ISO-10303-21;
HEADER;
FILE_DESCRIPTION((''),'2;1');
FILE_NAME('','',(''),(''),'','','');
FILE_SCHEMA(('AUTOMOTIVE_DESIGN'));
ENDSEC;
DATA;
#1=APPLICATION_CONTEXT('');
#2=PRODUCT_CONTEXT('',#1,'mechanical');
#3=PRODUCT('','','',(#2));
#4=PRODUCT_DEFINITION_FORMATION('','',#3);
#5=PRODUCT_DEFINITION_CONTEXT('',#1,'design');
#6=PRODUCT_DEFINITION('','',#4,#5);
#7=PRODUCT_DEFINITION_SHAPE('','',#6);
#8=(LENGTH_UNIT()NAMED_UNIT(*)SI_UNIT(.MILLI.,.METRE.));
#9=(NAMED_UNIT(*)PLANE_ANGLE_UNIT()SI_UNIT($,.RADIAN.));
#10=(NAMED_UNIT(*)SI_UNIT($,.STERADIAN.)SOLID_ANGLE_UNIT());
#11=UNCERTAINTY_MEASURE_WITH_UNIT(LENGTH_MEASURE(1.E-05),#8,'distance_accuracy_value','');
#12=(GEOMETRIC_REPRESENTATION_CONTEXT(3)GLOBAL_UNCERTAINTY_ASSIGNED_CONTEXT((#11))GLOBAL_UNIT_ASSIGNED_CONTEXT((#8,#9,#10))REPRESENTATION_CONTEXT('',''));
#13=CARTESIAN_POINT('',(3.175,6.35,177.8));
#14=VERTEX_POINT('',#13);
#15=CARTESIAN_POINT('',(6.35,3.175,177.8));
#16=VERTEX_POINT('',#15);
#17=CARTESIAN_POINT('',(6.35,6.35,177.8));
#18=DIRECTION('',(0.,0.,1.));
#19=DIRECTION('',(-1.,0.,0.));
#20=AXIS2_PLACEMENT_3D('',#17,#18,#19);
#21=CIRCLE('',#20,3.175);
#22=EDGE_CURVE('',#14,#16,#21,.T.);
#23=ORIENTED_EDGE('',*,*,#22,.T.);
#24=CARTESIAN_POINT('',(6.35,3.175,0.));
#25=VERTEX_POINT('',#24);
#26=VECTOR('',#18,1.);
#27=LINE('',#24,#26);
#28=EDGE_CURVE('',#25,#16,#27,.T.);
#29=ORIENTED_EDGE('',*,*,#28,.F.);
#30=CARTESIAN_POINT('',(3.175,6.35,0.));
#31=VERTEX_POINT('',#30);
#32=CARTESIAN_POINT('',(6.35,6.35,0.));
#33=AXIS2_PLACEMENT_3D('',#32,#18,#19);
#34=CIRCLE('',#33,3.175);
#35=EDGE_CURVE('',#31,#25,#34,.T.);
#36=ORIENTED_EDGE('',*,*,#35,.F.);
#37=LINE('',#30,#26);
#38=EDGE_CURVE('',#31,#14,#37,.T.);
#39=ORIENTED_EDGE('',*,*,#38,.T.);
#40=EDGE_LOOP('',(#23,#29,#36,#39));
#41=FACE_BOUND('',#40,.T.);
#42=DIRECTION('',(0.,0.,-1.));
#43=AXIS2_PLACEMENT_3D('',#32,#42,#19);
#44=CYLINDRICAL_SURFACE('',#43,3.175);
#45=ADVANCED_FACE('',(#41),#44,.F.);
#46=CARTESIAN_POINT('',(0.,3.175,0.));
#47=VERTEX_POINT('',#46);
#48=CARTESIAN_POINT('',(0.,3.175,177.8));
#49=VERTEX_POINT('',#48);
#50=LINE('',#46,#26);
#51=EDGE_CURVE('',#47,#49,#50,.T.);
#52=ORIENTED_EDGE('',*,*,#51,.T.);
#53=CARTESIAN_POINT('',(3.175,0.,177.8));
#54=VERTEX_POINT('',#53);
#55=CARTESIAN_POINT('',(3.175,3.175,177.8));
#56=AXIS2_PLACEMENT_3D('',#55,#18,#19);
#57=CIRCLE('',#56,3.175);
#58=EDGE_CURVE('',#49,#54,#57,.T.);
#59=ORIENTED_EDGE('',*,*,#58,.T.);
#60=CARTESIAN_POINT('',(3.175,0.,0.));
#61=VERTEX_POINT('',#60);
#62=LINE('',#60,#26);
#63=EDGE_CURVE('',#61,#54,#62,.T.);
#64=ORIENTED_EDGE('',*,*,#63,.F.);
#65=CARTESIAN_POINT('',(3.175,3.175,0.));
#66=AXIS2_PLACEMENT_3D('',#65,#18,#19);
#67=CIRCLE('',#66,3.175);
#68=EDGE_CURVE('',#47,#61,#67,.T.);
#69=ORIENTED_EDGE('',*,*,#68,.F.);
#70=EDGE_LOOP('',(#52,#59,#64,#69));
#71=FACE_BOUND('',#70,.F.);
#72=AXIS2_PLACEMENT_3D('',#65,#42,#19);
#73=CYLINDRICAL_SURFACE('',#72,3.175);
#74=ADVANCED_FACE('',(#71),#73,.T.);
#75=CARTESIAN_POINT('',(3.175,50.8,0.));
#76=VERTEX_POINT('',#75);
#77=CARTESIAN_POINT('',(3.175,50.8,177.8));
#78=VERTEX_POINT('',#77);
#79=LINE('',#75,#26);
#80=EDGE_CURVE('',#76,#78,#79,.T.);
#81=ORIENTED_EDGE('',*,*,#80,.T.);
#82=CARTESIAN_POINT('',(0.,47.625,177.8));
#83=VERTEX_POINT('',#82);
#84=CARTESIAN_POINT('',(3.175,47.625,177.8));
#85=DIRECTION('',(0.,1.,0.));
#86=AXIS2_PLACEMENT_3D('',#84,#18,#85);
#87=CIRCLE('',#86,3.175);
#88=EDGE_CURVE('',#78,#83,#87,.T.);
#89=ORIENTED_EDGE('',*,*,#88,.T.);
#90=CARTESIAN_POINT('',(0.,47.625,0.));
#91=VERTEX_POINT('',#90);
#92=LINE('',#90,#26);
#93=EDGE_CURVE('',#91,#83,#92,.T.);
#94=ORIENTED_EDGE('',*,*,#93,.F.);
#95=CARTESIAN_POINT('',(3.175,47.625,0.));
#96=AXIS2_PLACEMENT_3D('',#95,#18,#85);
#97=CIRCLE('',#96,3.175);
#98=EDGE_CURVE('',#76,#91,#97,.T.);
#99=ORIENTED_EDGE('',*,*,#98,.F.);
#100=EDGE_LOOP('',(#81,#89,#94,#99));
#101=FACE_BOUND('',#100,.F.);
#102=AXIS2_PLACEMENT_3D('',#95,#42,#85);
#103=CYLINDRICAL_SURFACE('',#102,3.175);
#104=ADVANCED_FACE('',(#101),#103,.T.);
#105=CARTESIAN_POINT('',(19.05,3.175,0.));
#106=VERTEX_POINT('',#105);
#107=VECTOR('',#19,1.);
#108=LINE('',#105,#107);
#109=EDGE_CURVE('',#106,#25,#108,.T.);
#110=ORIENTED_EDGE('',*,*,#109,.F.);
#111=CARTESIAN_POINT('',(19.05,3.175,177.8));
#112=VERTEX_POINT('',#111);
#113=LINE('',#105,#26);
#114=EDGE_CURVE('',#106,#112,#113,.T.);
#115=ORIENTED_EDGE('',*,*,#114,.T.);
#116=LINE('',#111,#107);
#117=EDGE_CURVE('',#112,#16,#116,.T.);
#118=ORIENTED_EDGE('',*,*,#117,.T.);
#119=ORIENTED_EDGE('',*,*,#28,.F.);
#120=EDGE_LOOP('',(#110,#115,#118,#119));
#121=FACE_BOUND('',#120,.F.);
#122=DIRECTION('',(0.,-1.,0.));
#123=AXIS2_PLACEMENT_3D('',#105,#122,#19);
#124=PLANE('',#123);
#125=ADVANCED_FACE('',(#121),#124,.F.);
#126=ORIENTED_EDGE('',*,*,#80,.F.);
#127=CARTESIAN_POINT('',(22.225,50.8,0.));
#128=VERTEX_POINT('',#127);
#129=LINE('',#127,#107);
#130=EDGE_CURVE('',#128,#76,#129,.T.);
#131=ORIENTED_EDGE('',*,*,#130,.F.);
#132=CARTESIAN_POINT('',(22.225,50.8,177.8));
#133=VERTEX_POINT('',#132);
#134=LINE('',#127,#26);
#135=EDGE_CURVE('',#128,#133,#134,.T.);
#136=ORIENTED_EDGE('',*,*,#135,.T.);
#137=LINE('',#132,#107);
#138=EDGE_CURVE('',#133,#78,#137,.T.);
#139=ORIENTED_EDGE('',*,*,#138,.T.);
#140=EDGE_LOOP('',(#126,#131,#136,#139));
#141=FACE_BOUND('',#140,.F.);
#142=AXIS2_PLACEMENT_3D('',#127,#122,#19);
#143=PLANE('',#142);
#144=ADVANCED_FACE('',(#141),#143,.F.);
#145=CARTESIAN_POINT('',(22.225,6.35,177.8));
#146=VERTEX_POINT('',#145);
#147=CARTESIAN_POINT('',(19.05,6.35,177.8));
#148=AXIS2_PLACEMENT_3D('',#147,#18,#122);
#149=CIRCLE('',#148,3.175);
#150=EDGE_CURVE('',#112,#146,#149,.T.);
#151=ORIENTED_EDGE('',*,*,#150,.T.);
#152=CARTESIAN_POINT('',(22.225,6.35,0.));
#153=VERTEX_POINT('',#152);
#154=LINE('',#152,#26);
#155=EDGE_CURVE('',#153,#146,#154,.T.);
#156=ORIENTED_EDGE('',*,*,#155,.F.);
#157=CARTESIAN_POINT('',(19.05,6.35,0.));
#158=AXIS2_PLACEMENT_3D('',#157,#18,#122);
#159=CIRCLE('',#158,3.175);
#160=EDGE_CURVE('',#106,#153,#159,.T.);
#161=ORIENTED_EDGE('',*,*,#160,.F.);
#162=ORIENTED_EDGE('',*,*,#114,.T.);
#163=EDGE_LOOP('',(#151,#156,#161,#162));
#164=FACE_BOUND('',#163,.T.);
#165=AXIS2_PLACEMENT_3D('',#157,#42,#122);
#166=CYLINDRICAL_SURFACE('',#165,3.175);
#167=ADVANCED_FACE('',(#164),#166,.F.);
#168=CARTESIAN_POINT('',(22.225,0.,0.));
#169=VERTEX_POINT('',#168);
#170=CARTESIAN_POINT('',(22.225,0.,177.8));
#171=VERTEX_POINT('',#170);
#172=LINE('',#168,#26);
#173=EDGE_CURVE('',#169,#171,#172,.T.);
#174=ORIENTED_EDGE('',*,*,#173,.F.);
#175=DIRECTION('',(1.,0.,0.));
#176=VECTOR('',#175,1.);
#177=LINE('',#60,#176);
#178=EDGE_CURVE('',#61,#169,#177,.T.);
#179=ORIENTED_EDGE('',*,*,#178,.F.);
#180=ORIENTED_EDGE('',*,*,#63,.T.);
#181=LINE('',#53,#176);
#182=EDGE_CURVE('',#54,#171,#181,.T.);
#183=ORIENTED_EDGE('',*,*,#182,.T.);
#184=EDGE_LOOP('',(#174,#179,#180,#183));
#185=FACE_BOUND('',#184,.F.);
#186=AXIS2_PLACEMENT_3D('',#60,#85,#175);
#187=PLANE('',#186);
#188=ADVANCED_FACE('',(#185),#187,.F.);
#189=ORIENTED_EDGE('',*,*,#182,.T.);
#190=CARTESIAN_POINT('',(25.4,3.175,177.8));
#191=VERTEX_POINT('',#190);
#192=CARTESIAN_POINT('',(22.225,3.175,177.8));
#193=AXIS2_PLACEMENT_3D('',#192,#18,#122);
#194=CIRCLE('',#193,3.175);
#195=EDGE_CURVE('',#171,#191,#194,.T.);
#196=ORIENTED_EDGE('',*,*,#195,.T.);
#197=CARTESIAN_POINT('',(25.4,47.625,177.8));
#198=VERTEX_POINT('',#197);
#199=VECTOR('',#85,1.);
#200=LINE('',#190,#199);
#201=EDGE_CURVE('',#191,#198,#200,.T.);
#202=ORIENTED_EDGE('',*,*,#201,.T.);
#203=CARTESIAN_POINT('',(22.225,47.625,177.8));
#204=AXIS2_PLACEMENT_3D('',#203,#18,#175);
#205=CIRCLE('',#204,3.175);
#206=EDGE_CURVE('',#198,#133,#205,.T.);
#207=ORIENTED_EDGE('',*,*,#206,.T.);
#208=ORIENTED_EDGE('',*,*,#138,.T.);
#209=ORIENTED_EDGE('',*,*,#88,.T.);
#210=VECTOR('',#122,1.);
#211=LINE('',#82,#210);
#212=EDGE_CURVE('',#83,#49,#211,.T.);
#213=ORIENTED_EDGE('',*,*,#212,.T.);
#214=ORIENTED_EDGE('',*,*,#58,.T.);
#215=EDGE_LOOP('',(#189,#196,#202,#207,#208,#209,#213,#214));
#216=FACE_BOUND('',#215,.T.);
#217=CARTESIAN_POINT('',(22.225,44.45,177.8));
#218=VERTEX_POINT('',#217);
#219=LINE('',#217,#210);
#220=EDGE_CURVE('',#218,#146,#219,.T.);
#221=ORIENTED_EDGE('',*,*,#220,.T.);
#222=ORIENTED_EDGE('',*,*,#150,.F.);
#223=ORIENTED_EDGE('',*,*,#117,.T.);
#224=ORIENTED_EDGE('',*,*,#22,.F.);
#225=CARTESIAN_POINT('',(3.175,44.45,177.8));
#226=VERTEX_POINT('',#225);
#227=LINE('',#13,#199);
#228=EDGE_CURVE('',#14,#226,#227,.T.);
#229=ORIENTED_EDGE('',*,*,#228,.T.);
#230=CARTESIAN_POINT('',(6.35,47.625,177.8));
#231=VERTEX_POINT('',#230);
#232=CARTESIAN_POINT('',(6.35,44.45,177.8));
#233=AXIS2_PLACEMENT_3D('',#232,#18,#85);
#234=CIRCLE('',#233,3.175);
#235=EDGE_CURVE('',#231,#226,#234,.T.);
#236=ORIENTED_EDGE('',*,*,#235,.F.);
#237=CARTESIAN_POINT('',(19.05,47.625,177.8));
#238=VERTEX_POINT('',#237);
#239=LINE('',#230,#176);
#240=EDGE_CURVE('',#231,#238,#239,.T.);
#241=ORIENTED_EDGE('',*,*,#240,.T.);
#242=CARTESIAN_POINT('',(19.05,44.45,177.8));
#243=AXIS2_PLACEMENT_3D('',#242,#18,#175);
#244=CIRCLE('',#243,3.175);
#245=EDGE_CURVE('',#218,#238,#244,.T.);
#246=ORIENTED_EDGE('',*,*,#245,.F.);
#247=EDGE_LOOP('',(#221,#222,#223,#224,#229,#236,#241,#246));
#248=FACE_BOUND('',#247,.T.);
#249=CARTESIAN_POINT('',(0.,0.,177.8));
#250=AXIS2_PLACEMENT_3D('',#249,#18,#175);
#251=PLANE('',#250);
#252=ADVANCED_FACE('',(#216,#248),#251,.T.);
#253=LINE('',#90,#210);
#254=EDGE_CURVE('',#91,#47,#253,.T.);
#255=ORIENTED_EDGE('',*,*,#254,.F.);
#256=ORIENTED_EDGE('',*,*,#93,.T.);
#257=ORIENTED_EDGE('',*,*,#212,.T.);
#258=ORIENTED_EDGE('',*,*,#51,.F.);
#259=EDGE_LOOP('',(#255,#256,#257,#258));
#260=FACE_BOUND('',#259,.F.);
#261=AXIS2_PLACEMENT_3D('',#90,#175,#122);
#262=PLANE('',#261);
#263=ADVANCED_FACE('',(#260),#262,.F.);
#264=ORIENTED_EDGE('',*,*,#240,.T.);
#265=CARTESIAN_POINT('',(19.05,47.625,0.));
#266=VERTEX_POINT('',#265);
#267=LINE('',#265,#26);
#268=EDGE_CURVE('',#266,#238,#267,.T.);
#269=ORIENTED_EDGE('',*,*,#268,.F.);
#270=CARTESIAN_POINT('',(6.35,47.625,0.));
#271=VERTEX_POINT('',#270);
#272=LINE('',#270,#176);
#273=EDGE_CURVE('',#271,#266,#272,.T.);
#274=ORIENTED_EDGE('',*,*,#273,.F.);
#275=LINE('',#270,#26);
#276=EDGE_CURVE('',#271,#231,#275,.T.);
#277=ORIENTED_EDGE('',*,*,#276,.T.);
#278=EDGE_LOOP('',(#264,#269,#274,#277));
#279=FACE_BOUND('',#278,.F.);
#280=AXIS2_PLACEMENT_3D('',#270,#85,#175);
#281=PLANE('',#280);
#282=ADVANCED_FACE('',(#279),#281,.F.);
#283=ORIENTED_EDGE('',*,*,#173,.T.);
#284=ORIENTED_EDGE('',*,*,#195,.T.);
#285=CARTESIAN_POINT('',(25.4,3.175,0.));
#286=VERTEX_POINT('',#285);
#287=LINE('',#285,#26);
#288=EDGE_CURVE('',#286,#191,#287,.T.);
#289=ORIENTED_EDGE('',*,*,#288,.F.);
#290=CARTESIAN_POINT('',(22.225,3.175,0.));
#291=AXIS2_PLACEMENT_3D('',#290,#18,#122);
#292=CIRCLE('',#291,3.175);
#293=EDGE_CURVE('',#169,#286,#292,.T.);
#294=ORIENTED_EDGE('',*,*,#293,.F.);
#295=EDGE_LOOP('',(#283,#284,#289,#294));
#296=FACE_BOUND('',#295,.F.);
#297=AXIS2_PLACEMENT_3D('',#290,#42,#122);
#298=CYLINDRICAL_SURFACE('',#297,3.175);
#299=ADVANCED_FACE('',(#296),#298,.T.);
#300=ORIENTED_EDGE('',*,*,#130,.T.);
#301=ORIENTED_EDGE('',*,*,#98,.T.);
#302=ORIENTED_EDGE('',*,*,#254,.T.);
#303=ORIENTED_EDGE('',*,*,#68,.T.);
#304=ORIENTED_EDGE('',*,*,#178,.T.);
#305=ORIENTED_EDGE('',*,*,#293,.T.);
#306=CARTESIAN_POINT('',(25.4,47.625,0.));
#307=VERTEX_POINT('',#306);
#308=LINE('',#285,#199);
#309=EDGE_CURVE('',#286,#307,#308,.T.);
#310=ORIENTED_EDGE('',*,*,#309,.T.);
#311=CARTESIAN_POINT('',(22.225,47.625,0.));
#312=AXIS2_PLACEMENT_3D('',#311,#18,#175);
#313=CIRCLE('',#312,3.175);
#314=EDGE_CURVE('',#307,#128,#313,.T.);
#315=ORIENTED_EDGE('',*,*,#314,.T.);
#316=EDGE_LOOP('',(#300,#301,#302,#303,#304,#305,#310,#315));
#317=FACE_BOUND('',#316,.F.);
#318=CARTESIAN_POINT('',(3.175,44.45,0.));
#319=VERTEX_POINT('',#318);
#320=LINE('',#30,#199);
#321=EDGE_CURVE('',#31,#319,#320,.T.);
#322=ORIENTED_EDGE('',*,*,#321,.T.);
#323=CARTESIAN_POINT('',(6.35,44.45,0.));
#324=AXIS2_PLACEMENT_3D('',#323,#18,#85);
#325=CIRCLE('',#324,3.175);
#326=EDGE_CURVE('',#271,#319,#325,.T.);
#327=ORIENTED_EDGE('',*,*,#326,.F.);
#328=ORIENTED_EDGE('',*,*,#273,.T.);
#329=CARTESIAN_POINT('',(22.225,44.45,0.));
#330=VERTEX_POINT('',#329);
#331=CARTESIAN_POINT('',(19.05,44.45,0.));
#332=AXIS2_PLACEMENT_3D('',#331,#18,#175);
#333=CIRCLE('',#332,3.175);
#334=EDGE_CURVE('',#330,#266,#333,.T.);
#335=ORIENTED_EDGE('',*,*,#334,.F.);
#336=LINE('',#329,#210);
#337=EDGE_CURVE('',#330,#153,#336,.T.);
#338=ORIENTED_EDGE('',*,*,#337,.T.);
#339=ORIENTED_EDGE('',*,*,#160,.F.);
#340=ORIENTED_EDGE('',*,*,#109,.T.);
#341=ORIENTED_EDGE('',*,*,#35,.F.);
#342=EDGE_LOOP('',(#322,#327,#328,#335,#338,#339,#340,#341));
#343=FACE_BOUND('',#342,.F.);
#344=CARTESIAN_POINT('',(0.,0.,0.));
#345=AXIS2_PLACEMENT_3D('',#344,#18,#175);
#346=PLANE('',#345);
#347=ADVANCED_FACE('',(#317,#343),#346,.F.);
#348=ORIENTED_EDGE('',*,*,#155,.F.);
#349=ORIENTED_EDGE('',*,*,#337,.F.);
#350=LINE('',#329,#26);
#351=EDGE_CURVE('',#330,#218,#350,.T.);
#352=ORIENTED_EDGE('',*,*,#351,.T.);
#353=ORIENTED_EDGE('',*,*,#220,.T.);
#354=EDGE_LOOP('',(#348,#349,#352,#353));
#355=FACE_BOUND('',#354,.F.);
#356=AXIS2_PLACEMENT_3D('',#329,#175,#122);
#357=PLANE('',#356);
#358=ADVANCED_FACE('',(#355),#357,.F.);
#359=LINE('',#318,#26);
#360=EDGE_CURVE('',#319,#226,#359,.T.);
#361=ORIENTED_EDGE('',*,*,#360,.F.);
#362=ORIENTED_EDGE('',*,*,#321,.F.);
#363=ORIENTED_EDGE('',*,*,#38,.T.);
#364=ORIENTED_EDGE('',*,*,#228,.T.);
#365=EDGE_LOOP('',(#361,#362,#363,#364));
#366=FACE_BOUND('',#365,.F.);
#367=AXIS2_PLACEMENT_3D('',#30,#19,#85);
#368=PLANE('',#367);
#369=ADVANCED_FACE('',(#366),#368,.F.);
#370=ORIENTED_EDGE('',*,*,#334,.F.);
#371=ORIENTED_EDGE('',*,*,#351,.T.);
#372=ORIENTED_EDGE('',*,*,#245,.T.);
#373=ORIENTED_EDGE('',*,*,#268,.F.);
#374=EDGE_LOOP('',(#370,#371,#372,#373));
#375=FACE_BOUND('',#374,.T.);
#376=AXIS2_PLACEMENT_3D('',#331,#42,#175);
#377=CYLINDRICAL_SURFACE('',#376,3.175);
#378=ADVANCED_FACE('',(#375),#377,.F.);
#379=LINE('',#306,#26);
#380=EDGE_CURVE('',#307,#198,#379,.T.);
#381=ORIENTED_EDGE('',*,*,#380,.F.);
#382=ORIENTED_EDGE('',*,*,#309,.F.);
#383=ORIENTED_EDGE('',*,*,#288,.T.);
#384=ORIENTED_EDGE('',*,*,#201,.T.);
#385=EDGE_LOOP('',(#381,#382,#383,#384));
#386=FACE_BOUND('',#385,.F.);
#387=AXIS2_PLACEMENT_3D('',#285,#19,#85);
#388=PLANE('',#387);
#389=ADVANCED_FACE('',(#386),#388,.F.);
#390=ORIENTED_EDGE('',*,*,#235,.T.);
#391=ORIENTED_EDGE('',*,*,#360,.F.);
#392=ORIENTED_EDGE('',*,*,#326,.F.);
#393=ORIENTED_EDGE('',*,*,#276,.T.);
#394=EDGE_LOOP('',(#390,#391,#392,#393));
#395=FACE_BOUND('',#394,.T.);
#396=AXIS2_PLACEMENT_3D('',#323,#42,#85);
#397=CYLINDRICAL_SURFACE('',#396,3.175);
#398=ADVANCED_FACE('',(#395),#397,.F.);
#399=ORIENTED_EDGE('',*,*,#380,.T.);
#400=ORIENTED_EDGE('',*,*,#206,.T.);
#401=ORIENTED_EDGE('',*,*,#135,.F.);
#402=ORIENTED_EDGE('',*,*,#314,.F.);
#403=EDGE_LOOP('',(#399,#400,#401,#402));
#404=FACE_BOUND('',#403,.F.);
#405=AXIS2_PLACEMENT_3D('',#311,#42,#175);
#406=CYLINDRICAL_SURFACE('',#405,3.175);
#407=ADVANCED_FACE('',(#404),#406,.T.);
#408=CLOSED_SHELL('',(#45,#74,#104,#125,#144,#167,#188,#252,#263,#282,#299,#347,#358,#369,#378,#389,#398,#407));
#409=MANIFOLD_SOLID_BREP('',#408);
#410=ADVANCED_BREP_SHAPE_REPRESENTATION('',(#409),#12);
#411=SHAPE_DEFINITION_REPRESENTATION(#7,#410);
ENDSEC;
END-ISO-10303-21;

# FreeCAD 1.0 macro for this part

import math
import FreeCAD as App
import Part
import Sketcher
Q = App.Units.Quantity

doc = App.newDocument("Part")
body = doc.addObject("PartDesign::Body", "Body")

# Sketch on XY plane
sketch1 = body.newObject("Sketcher::SketchObject", "Sketch")
sketch1.AttachmentSupport = (doc.getObject("XY_Plane"), [""])
sketch1.MapMode = "FlatFace"
sketch1.addGeometry(Part.ArcOfCircle(Part.Circle(App.Vector(3.2, 3.2, 0), App.Vector(0, 0, 1), 3.2), math.radians(180), math.radians(270)), False)
sketch1.addGeometry(Part.LineSegment(App.Vector(3.2, 0, 0), App.Vector(22.2, 0, 0)), False)
sketch1.addGeometry(Part.ArcOfCircle(Part.Circle(App.Vector(22.2, 3.2, 0), App.Vector(0, 0, 1), 3.2), math.radians(-90), math.radians(0)), False)
sketch1.addGeometry(Part.LineSegment(App.Vector(25.4, 3.2, 0), App.Vector(25.4, 47.6, 0)), False)
sketch1.addGeometry(Part.ArcOfCircle(Part.Circle(App.Vector(22.2, 47.6, 0), App.Vector(0, 0, 1), 3.2), math.radians(0), math.radians(90)), False)
sketch1.addGeometry(Part.LineSegment(App.Vector(22.2, 50.8, 0), App.Vector(3.2, 50.8, 0)), False)
sketch1.addGeometry(Part.ArcOfCircle(Part.Circle(App.Vector(3.2, 47.6, 0), App.Vector(0, 0, 1), 3.2), math.radians(90), math.radians(180)), False)
sketch1.addGeometry(Part.LineSegment(App.Vector(0, 47.6, 0), App.Vector(0, 3.2, 0)), False)
sketch1.addGeometry(Part.ArcOfCircle(Part.Circle(App.Vector(6.3, 44.5, 0), App.Vector(0, 0, 1), 3.2), math.radians(90), math.radians(180)), False)
sketch1.addGeometry(Part.LineSegment(App.Vector(6.3, 47.6, 0), App.Vector(19.1, 47.6, 0)), False)
sketch1.addGeometry(Part.ArcOfCircle(Part.Circle(App.Vector(19.1, 44.5, 0), App.Vector(0, 0, 1), 3.2), math.radians(0), math.radians(90)), False)
sketch1.addGeometry(Part.LineSegment(App.Vector(22.2, 44.5, 0), App.Vector(22.2, 6.3, 0)), False)
sketch1.addGeometry(Part.ArcOfCircle(Part.Circle(App.Vector(19.1, 6.3, 0), App.Vector(0, 0, 1), 3.2), math.radians(-90), math.radians(0)), False)
sketch1.addGeometry(Part.LineSegment(App.Vector(19.1, 3.2, 0), App.Vector(6.3, 3.2, 0)), False)
sketch1.addGeometry(Part.ArcOfCircle(Part.Circle(App.Vector(6.3, 6.3, 0), App.Vector(0, 0, 1), 3.2), math.radians(180), math.radians(270)), False)
sketch1.addGeometry(Part.LineSegment(App.Vector(3.2, 6.3, 0), App.Vector(3.2, 44.5, 0)), False)
sketch1.addConstraint(Sketcher.Constraint("Tangent", 0, 2, 1, 1))
sketch1.addConstraint(Sketcher.Constraint("Tangent", 1, 2, 2, 1))
sketch1.addConstraint(Sketcher.Constraint("Tangent", 2, 2, 3, 1))
sketch1.addConstraint(Sketcher.Constraint("Tangent", 3, 2, 4, 1))
sketch1.addConstraint(Sketcher.Constraint("Tangent", 4, 2, 5, 1))
sketch1.addConstraint(Sketcher.Constraint("Tangent", 5, 2, 6, 1))
sketch1.addConstraint(Sketcher.Constraint("Tangent", 6, 2, 7, 1))
sketch1.addConstraint(Sketcher.Constraint("Tangent", 7, 2, 0, 1))
sketch1.addConstraint(Sketcher.Constraint("Tangent", 8, 1, 9, 1))
sketch1.addConstraint(Sketcher.Constraint("Tangent", 9, 2, 10, 2))
sketch1.addConstraint(Sketcher.Constraint("Tangent", 10, 1, 11, 1))
sketch1.addConstraint(Sketcher.Constraint("Tangent", 11, 2, 12, 2))
sketch1.addConstraint(Sketcher.Constraint("Tangent", 12, 1, 13, 1))
sketch1.addConstraint(Sketcher.Constraint("Tangent", 13, 2, 14, 2))
sketch1.addConstraint(Sketcher.Constraint("Tangent", 14, 1, 15, 1))
sketch1.addConstraint(Sketcher.Constraint("Tangent", 15, 2, 8, 2))
sketch1.addConstraint(Sketcher.Constraint("Horizontal", 1))
sketch1.addConstraint(Sketcher.Constraint("Vertical", 3))
sketch1.addConstraint(Sketcher.Constraint("Horizontal", 5))
sketch1.addConstraint(Sketcher.Constraint("Vertical", 7))
sketch1.addConstraint(Sketcher.Constraint("Horizontal", 9))
sketch1.addConstraint(Sketcher.Constraint("Vertical", 11))
sketch1.addConstraint(Sketcher.Constraint("Horizontal", 13))
sketch1.addConstraint(Sketcher.Constraint("Vertical", 15))
sketch1.addConstraint(Sketcher.Constraint("Equal", 0, 2))
sketch1.addConstraint(Sketcher.Constraint("Equal", 2, 4))
sketch1.addConstraint(Sketcher.Constraint("Equal", 4, 6))
sketch1.addConstraint(Sketcher.Constraint("Equal", 6, 8))
sketch1.addConstraint(Sketcher.Constraint("Equal", 8, 10))
sketch1.addConstraint(Sketcher.Constraint("Equal", 10, 12))
sketch1.addConstraint(Sketcher.Constraint("Equal", 12, 14))
sketch1.addConstraint(Sketcher.Constraint("PointOnObject", 0, 2, -1))
sketch1.addConstraint(Sketcher.Constraint("PointOnObject", 6, 2, -2))
sketch1.addConstraint(Sketcher.Constraint("Horizontal", 6, 2, 8, 1))
sketch1.addConstraint(Sketcher.Constraint("Horizontal", 7, 2, 12, 1))
sketch1.addConstraint(Sketcher.Constraint("Vertical", 4, 2, 10, 1))
sketch1.addConstraint(Sketcher.Constraint("Vertical", 5, 2, 14, 1))
sketch1.addConstraint(Sketcher.Constraint("DistanceX", -1, 1, 2, 2, Q("1 in")))
sketch1.addConstraint(Sketcher.Constraint("DistanceY", -1, 1, 4, 2, Q("2 in")))
sketch1.addConstraint(Sketcher.Constraint("Radius", 0, Q("0.125 in")))
pad1 = body.newObject("PartDesign::Pad", "Pad")
pad1.Profile = sketch1
pad1.Length = Q("7 in")

doc.recompute()
